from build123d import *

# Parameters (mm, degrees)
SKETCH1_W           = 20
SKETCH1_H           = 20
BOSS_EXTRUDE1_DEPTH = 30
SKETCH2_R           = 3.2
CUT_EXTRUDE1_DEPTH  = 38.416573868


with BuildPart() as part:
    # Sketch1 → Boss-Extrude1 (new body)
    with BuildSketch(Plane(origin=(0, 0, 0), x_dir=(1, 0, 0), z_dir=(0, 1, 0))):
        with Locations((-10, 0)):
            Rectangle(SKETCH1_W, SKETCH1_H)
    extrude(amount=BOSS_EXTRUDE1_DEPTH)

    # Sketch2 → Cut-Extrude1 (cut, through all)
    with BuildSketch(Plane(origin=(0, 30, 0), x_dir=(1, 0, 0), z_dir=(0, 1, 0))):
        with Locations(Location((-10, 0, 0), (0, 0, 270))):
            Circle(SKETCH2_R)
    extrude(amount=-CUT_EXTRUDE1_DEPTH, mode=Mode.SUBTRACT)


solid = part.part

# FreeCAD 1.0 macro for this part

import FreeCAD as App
import Part
import Sketcher

V = App.Vector


def add_polygon(sketch, points):
    """Adds a closed chain of lines whose ends are joined by coincident constraints."""
    first, n = sketch.GeometryCount, len(points)
    for a, b in zip(points, points[1:] + points[:1]):
        sketch.addGeometry(Part.LineSegment(App.Vector(*a, 0), App.Vector(*b, 0)), False)
    for i in range(n):
        sketch.addConstraint(Sketcher.Constraint("Coincident", first + i, 2, first + (i + 1) % n, 1))

doc = App.newDocument("Part")
params = doc.addObject("Spreadsheet::Sheet", "Params")
for row, (alias, value) in enumerate([
    ("sketch1_width", "20 mm"),
    ("pad1_length", "30 mm"),
    ("sketch2_diameter", "6.4 mm"),
], start=1):
    params.set(f"A{row}", alias)
    params.set(f"B{row}", "=" + value)
    params.setAlias(f"B{row}", alias)

body = doc.addObject("PartDesign::Body", "Body")

sketch1 = body.newObject("Sketcher::SketchObject", "Sketch")
sketch1.AttachmentSupport = (doc.getObject("XZ_Plane"), [""])
sketch1.MapMode = "FlatFace"
add_polygon(sketch1, [(-20, -10), (-20, 10), (0, 10), (0, -10)])
sketch1.addConstraint(Sketcher.Constraint("Vertical", 0))
sketch1.addConstraint(Sketcher.Constraint("Horizontal", 1))
sketch1.addConstraint(Sketcher.Constraint("Vertical", 2))
sketch1.addConstraint(Sketcher.Constraint("Horizontal", 3))
sketch1.addConstraint(Sketcher.Constraint("Symmetric", 1, 2, 2, 2, -1, 1))
sketch1.addConstraint(Sketcher.Constraint("Equal", 3, 0))
sketch1.addConstraint(Sketcher.Constraint("DistanceX", 1, 1, 1, 2, 20.0))
sketch1.setExpression("Constraints[10]", "Params.sketch1_width")
pad1 = body.newObject("PartDesign::Pad", "Pad")
pad1.Profile = sketch1
pad1.setExpression("Length", "Params.pad1_length")
pad1.Reversed = True

sketch2 = body.newObject("Sketcher::SketchObject", "Sketch001")
sketch2.AttachmentSupport = (doc.getObject("XZ_Plane"), [""])
sketch2.MapMode = "FlatFace"
sketch2.AttachmentOffset = App.Placement(V(0, 0, -30), App.Rotation())
sketch2.addGeometry(Part.Circle(V(-10, 0, 0), V(0, 0, 1), 3.2), False)
sketch2.addConstraint(Sketcher.Constraint("PointOnObject", 0, 3, -1))
sketch2.addConstraint(Sketcher.Constraint("Diameter", 0, 6.4))
sketch2.addConstraint(Sketcher.Constraint("DistanceX", 0, 3, -1, 1, 10.0))
sketch2.setExpression("Constraints[1]", "Params.sketch2_diameter")
pocket1 = body.newObject("PartDesign::Pocket", "Pocket")
pocket1.Profile = sketch2
pocket1.Type = "ThroughAll"
pocket1.Reversed = True

doc.recompute()
